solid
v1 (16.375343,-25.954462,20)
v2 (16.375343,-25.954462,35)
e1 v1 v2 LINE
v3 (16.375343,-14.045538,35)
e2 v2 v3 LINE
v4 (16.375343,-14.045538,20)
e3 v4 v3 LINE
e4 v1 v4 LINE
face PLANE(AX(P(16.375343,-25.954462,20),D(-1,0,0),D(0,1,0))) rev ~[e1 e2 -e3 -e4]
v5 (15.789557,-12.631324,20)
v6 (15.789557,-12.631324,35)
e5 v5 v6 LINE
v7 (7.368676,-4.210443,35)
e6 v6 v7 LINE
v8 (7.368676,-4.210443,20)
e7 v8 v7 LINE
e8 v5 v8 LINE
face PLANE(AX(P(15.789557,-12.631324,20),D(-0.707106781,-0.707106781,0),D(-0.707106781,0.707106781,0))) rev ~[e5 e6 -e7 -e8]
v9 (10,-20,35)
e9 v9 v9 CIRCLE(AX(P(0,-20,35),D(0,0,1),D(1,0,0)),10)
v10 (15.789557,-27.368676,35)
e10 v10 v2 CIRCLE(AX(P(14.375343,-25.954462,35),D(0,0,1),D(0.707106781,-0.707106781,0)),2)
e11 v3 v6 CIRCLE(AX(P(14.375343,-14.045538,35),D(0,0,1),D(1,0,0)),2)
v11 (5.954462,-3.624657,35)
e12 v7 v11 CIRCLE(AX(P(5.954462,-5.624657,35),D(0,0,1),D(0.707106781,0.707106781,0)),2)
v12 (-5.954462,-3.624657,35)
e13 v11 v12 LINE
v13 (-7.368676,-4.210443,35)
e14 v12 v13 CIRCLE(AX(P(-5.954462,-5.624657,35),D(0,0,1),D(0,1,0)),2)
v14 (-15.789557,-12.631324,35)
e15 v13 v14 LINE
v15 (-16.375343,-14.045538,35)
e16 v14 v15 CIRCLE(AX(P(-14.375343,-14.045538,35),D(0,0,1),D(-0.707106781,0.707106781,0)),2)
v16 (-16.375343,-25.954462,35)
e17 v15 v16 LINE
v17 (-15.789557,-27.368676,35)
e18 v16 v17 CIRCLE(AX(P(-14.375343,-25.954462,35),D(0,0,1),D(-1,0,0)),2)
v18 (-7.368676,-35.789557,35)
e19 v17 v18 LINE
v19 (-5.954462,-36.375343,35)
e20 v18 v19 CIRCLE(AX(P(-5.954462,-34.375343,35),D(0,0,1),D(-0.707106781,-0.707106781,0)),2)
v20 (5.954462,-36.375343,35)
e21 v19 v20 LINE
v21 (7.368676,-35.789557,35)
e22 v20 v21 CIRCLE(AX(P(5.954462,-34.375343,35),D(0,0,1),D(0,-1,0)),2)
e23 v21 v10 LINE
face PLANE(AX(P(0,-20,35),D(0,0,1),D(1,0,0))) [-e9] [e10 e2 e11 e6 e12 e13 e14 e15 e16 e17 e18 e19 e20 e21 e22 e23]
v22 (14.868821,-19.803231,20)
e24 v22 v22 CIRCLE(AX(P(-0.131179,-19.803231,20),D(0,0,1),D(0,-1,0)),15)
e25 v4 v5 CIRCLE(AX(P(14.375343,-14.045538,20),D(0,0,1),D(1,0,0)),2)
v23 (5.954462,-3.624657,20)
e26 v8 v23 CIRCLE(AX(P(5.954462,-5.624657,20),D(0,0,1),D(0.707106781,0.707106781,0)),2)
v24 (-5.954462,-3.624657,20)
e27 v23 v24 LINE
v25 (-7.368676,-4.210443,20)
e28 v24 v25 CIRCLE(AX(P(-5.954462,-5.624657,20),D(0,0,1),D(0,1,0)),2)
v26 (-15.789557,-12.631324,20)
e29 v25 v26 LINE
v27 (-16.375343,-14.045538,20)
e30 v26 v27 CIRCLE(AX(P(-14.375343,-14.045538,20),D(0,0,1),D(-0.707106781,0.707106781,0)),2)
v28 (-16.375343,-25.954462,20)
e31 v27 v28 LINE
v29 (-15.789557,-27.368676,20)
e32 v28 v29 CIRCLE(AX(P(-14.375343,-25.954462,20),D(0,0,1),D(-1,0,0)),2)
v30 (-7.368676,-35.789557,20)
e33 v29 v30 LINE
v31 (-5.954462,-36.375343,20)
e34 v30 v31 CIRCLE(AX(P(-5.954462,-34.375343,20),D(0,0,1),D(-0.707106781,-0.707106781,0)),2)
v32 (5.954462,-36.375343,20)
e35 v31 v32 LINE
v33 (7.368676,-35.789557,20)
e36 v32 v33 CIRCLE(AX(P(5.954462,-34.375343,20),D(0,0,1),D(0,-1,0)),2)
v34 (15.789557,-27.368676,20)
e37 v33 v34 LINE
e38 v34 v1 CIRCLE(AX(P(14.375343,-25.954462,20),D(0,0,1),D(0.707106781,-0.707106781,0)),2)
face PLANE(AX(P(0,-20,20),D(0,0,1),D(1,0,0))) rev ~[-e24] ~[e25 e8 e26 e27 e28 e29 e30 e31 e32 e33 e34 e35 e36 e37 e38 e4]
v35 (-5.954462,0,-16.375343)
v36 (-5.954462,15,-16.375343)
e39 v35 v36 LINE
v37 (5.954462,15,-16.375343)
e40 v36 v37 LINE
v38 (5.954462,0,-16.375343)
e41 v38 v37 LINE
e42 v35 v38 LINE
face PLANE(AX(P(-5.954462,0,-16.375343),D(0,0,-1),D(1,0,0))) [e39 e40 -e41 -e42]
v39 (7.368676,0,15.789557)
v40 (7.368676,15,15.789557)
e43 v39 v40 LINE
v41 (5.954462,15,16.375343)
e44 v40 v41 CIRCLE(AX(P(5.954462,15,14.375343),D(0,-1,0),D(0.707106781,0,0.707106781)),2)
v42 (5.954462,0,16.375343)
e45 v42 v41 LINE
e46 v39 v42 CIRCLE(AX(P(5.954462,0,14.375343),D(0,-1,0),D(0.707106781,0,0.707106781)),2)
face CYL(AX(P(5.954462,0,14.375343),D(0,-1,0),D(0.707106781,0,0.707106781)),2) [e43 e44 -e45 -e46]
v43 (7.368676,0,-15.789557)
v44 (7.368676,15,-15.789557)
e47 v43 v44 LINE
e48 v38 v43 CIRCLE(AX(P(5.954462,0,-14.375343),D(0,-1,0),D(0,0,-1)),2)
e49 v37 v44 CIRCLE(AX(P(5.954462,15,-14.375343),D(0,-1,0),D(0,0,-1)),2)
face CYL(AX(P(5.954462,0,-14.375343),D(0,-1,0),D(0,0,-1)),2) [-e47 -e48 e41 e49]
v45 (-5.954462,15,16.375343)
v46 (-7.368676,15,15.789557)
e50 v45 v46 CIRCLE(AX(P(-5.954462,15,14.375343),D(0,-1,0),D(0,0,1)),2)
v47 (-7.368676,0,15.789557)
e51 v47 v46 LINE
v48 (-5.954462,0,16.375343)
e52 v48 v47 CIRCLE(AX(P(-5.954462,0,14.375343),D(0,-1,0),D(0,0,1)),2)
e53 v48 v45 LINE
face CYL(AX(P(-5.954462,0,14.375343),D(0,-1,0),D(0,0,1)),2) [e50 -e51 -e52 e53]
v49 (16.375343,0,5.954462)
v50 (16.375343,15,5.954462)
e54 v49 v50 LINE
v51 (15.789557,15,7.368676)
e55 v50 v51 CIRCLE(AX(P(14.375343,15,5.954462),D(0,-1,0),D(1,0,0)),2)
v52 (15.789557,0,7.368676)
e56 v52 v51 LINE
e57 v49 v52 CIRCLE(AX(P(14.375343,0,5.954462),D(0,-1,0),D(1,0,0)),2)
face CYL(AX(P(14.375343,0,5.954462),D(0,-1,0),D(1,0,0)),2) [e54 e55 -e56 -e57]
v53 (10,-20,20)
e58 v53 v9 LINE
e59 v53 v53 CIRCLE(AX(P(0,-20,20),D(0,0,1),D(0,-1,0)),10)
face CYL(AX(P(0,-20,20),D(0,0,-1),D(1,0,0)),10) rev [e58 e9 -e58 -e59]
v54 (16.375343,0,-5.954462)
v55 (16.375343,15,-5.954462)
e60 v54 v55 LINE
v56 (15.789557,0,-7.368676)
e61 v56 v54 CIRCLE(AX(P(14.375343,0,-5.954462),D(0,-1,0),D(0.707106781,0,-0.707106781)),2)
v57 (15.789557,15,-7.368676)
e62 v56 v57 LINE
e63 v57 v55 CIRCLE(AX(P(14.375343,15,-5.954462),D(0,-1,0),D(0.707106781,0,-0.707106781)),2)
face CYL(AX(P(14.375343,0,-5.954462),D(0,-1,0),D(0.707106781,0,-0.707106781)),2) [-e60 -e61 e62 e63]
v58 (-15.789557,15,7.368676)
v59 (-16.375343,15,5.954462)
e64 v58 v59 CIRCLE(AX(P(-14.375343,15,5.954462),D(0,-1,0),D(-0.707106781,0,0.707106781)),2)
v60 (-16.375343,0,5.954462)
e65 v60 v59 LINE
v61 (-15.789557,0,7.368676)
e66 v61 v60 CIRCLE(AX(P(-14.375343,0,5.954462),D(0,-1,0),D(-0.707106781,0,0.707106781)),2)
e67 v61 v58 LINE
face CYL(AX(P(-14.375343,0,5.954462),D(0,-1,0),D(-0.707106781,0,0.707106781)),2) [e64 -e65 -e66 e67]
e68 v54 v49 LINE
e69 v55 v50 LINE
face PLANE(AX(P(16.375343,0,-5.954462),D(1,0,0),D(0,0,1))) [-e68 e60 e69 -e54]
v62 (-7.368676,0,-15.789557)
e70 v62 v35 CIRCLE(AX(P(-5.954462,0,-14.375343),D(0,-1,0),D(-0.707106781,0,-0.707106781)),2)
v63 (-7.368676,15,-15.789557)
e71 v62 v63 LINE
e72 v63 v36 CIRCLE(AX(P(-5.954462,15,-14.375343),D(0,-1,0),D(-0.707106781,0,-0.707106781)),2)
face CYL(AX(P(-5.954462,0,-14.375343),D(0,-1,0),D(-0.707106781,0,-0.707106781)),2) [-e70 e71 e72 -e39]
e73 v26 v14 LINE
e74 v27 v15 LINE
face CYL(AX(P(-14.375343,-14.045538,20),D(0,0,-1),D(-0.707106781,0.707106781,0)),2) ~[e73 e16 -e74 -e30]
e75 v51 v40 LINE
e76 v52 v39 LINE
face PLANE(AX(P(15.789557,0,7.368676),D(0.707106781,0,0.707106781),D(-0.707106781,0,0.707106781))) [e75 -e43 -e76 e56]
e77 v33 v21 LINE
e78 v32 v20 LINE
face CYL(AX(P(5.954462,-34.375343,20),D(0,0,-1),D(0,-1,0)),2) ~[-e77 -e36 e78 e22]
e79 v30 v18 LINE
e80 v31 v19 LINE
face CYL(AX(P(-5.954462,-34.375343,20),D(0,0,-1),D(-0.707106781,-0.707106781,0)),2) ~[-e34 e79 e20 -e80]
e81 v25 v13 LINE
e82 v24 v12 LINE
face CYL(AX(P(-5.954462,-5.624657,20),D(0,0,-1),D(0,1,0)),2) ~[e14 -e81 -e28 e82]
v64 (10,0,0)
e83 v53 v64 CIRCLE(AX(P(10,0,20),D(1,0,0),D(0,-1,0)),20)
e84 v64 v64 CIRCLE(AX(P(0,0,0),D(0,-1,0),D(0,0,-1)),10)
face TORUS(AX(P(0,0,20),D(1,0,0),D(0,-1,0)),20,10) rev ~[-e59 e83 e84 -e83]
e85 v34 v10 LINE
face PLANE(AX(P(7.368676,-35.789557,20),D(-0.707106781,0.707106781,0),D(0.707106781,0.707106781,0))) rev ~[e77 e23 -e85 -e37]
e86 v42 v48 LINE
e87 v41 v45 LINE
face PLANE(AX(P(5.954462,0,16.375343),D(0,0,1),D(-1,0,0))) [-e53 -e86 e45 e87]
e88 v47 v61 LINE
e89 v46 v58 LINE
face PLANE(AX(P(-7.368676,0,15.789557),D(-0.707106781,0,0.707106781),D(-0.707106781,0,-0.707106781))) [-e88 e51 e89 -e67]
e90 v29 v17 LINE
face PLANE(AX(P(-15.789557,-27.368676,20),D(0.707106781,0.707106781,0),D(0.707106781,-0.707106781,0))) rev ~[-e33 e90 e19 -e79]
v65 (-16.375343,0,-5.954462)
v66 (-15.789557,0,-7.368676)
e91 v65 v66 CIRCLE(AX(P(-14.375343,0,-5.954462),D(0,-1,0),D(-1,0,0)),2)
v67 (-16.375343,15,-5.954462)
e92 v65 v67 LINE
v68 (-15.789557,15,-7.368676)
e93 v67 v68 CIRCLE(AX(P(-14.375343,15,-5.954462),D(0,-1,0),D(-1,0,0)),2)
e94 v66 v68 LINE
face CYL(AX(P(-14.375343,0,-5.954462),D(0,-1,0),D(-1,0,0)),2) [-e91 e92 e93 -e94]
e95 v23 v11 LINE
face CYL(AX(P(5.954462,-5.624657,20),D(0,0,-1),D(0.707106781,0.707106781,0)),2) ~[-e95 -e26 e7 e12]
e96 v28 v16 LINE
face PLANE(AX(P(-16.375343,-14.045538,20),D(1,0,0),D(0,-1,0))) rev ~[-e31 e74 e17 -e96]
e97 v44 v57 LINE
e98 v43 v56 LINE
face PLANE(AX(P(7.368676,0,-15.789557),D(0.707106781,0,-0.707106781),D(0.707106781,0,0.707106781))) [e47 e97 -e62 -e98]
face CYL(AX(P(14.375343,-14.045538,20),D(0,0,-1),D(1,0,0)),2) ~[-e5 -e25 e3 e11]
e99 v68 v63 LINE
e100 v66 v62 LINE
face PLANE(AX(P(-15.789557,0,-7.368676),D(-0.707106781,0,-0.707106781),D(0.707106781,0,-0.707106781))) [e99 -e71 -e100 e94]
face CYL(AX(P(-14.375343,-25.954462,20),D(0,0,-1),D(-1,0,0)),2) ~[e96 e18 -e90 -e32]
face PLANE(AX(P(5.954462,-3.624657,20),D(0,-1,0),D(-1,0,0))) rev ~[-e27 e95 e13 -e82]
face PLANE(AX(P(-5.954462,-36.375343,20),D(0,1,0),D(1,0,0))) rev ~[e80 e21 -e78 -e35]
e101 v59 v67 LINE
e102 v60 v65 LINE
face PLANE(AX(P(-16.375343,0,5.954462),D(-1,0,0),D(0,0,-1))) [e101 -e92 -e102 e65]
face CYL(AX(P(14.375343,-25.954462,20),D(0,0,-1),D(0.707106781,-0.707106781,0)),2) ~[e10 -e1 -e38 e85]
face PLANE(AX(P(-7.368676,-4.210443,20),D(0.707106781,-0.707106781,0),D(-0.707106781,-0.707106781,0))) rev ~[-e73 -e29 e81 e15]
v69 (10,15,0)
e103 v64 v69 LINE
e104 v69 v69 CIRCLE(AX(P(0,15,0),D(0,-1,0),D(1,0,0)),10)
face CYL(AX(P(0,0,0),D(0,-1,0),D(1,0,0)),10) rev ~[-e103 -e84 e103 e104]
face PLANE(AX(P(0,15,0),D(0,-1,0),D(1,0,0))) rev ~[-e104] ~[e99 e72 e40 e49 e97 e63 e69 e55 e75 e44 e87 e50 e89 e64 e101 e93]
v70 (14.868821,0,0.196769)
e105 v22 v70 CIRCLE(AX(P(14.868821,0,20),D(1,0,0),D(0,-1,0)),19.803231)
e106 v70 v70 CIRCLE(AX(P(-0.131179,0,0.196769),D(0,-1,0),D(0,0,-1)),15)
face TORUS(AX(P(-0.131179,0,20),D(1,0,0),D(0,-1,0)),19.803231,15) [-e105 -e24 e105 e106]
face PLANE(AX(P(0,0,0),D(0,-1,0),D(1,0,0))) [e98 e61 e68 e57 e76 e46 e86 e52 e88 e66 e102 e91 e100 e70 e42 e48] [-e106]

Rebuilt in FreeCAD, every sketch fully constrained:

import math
import FreeCAD as App
import Part
import Sketcher
Q = App.Units.Quantity

doc = App.newDocument("Part")
body = doc.addObject("PartDesign::Body", "Body")

sketch1 = body.newObject("Sketcher::SketchObject", "Sketch")
sketch1.AttachmentSupport = (doc.getObject("XZ_Plane"), [""])
sketch1.MapMode = "FlatFace"
sketch1.addGeometry(Part.Circle(App.Vector(0, 0, 0), App.Vector(0, 0, 1), 15), False)
sketch1.addGeometry(Part.Circle(App.Vector(0, 0, 0), App.Vector(0, 0, 1), 10), False)
sketch1.addConstraint(Sketcher.Constraint("Coincident", 1, 3, -1, 1))
sketch1.addConstraint(Sketcher.Constraint("Diameter", 0, Q("30 mm")))
sketch1.addConstraint(Sketcher.Constraint("Diameter", 1, Q("20 mm")))
sketch1.addConstraint(Sketcher.Constraint("DistanceX", 0, 3, -1, 1, Q("0.131179 mm")))
sketch1.addConstraint(Sketcher.Constraint("DistanceY", -1, 1, 0, 3, Q("0.196769 mm")))

sketch2 = body.newObject("Sketcher::SketchObject", "Sketch001")
sketch2.AttachmentSupport = (doc.getObject("YZ_Plane"), [""])
sketch2.MapMode = "FlatFace"
sketch2.addGeometry(Part.ArcOfCircle(Part.Circle(App.Vector(0, 20, 0), App.Vector(0, 0, 1), 20), math.radians(180), math.radians(270)), False)
sketch2.addConstraint(Sketcher.Constraint("Coincident", 0, 2, -1, 1))
sketch2.addConstraint(Sketcher.Constraint("PointOnObject", 0, 3, -2))
sketch2.addConstraint(Sketcher.Constraint("Radius", 0, Q("20 mm")))
sketch2.addConstraint(Sketcher.Constraint("DistanceY", -1, 1, 0, 1, Q("20 mm")))
doc.recompute()

additivepipe = body.newObject("PartDesign::AdditivePipe", "AdditivePipe")
additivepipe.Profile = sketch1
additivepipe.Spine = (sketch2, ["Edge1"])

sketch3 = body.newObject("Sketcher::SketchObject", "Sketch002")
sketch3.AttachmentSupport = (doc.getObject("XZ_Plane"), [""])
sketch3.MapMode = "FlatFace"
sketch3.addGeometry(Part.LineSegment(App.Vector(6, 16.4, 0), App.Vector(-6, 16.4, 0)), False)
sketch3.addGeometry(Part.ArcOfCircle(Part.Circle(App.Vector(-6, 14.4, 0), App.Vector(0, 0, 1), 2), math.radians(90), math.radians(135)), False)
sketch3.addGeometry(Part.LineSegment(App.Vector(-7.4, 15.8, 0), App.Vector(-15.8, 7.4, 0)), False)
sketch3.addGeometry(Part.ArcOfCircle(Part.Circle(App.Vector(-14.4, 6, 0), App.Vector(0, 0, 1), 2), math.radians(135), math.radians(180)), False)
sketch3.addGeometry(Part.LineSegment(App.Vector(-16.4, 6, 0), App.Vector(-16.4, -6, 0)), False)
sketch3.addGeometry(Part.ArcOfCircle(Part.Circle(App.Vector(-14.4, -6, 0), App.Vector(0, 0, 1), 2), math.radians(180), math.radians(225)), False)
sketch3.addGeometry(Part.LineSegment(App.Vector(-15.8, -7.4, 0), App.Vector(-7.4, -15.8, 0)), False)
sketch3.addGeometry(Part.ArcOfCircle(Part.Circle(App.Vector(-6, -14.4, 0), App.Vector(0, 0, 1), 2), math.radians(-135), math.radians(-90)), False)
sketch3.addGeometry(Part.LineSegment(App.Vector(-6, -16.4, 0), App.Vector(6, -16.4, 0)), False)
sketch3.addGeometry(Part.ArcOfCircle(Part.Circle(App.Vector(6, -14.4, 0), App.Vector(0, 0, 1), 2), math.radians(-90), math.radians(-45)), False)
sketch3.addGeometry(Part.LineSegment(App.Vector(7.4, -15.8, 0), App.Vector(15.8, -7.4, 0)), False)
sketch3.addGeometry(Part.ArcOfCircle(Part.Circle(App.Vector(14.4, -6, 0), App.Vector(0, 0, 1), 2), math.radians(-45), math.radians(0)), False)
sketch3.addGeometry(Part.LineSegment(App.Vector(16.4, -6, 0), App.Vector(16.4, 6, 0)), False)
sketch3.addGeometry(Part.ArcOfCircle(Part.Circle(App.Vector(14.4, 6, 0), App.Vector(0, 0, 1), 2), math.radians(0), math.radians(45)), False)
sketch3.addGeometry(Part.LineSegment(App.Vector(15.8, 7.4, 0), App.Vector(7.4, 15.8, 0)), False)
sketch3.addGeometry(Part.ArcOfCircle(Part.Circle(App.Vector(6, 14.4, 0), App.Vector(0, 0, 1), 2), math.radians(45), math.radians(90)), False)
sketch3.addGeometry(Part.Circle(App.Vector(0, 0, 0), App.Vector(0, 0, 1), 10), False)
sketch3.addConstraint(Sketcher.Constraint("Tangent", 0, 2, 1, 1))
sketch3.addConstraint(Sketcher.Constraint("Tangent", 1, 2, 2, 1))
sketch3.addConstraint(Sketcher.Constraint("Tangent", 2, 2, 3, 1))
sketch3.addConstraint(Sketcher.Constraint("Tangent", 3, 2, 4, 1))
sketch3.addConstraint(Sketcher.Constraint("Tangent", 4, 2, 5, 1))
sketch3.addConstraint(Sketcher.Constraint("Tangent", 5, 2, 6, 1))
sketch3.addConstraint(Sketcher.Constraint("Tangent", 6, 2, 7, 1))
sketch3.addConstraint(Sketcher.Constraint("Tangent", 7, 2, 8, 1))
sketch3.addConstraint(Sketcher.Constraint("Tangent", 8, 2, 9, 1))
sketch3.addConstraint(Sketcher.Constraint("Tangent", 9, 2, 10, 1))
sketch3.addConstraint(Sketcher.Constraint("Tangent", 10, 2, 11, 1))
sketch3.addConstraint(Sketcher.Constraint("Tangent", 11, 2, 12, 1))
sketch3.addConstraint(Sketcher.Constraint("Tangent", 12, 2, 13, 1))
sketch3.addConstraint(Sketcher.Constraint("Tangent", 13, 2, 14, 1))
sketch3.addConstraint(Sketcher.Constraint("Tangent", 14, 2, 15, 1))
sketch3.addConstraint(Sketcher.Constraint("Tangent", 15, 2, 0, 1))
sketch3.addConstraint(Sketcher.Constraint("Horizontal", 0))
sketch3.addConstraint(Sketcher.Constraint("Vertical", 4))
sketch3.addConstraint(Sketcher.Constraint("Horizontal", 8))
sketch3.addConstraint(Sketcher.Constraint("Vertical", 12))
sketch3.addConstraint(Sketcher.Constraint("Coincident", 16, 3, -1, 1))
sketch3.addConstraint(Sketcher.Constraint("Equal", 1, 3))
sketch3.addConstraint(Sketcher.Constraint("Equal", 3, 5))
sketch3.addConstraint(Sketcher.Constraint("Equal", 5, 7))
sketch3.addConstraint(Sketcher.Constraint("Equal", 7, 9))
sketch3.addConstraint(Sketcher.Constraint("Equal", 9, 11))
sketch3.addConstraint(Sketcher.Constraint("Equal", 11, 13))
sketch3.addConstraint(Sketcher.Constraint("Equal", 13, 15))
sketch3.addConstraint(Sketcher.Constraint("Symmetric", 1, 3, 9, 3, -1, 1))
sketch3.addConstraint(Sketcher.Constraint("Symmetric", 3, 3, 11, 3, -1, 1))
sketch3.addConstraint(Sketcher.Constraint("Symmetric", 5, 2, 13, 2, -1, 1))
sketch3.addConstraint(Sketcher.Constraint("Symmetric", 6, 2, 9, 2, -2))
sketch3.addConstraint(Sketcher.Constraint("Perpendicular", 2, 6))
sketch3.addConstraint(Sketcher.Constraint("Equal", 8, 4))
sketch3.addConstraint(Sketcher.Constraint("Diameter", 16, Q("20 mm")))
sketch3.addConstraint(Sketcher.Constraint("Radius", 1, Q("2 mm")))
sketch3.addConstraint(Sketcher.Constraint("DistanceX", 0, 2, 0, 1, Q("11.908924 mm")))
sketch3.addConstraint(Sketcher.Constraint("DistanceX", 3, 3, 1, 3, Q("8.420881 mm")))
pad1 = body.newObject("PartDesign::Pad", "Pad")
pad1.Profile = sketch3
pad1.Length = 15
pad1.Reversed = True

sketch4 = body.newObject("Sketcher::SketchObject", "Sketch003")
sketch4.AttachmentSupport = (doc.getObject("XY_Plane"), [""])
sketch4.MapMode = "FlatFace"
sketch4.AttachmentOffset = App.Placement(App.Vector(0, 0, 20), App.Rotation())
sketch4.addGeometry(Part.LineSegment(App.Vector(6, -3.6, 0), App.Vector(-6, -3.6, 0)), False)
sketch4.addGeometry(Part.ArcOfCircle(Part.Circle(App.Vector(-6, -5.6, 0), App.Vector(0, 0, 1), 2), math.radians(90), math.radians(135)), False)
sketch4.addGeometry(Part.LineSegment(App.Vector(-7.4, -4.2, 0), App.Vector(-15.8, -12.6, 0)), False)
sketch4.addGeometry(Part.ArcOfCircle(Part.Circle(App.Vector(-14.4, -14, 0), App.Vector(0, 0, 1), 2), math.radians(135), math.radians(180)), False)
sketch4.addGeometry(Part.LineSegment(App.Vector(-16.4, -14, 0), App.Vector(-16.4, -26, 0)), False)
sketch4.addGeometry(Part.ArcOfCircle(Part.Circle(App.Vector(-14.4, -26, 0), App.Vector(0, 0, 1), 2), math.radians(180), math.radians(225)), False)
sketch4.addGeometry(Part.LineSegment(App.Vector(-15.8, -27.4, 0), App.Vector(-7.4, -35.8, 0)), False)
sketch4.addGeometry(Part.ArcOfCircle(Part.Circle(App.Vector(-6, -34.4, 0), App.Vector(0, 0, 1), 2), math.radians(-135), math.radians(-90)), False)
sketch4.addGeometry(Part.LineSegment(App.Vector(-6, -36.4, 0), App.Vector(6, -36.4, 0)), False)
sketch4.addGeometry(Part.ArcOfCircle(Part.Circle(App.Vector(6, -34.4, 0), App.Vector(0, 0, 1), 2), math.radians(-90), math.radians(-45)), False)
sketch4.addGeometry(Part.LineSegment(App.Vector(7.4, -35.8, 0), App.Vector(15.8, -27.4, 0)), False)
sketch4.addGeometry(Part.ArcOfCircle(Part.Circle(App.Vector(14.4, -26, 0), App.Vector(0, 0, 1), 2), math.radians(-45), math.radians(0)), False)
sketch4.addGeometry(Part.LineSegment(App.Vector(16.4, -26, 0), App.Vector(16.4, -14, 0)), False)
sketch4.addGeometry(Part.ArcOfCircle(Part.Circle(App.Vector(14.4, -14, 0), App.Vector(0, 0, 1), 2), math.radians(0), math.radians(45)), False)
sketch4.addGeometry(Part.LineSegment(App.Vector(15.8, -12.6, 0), App.Vector(7.4, -4.2, 0)), False)
sketch4.addGeometry(Part.ArcOfCircle(Part.Circle(App.Vector(6, -5.6, 0), App.Vector(0, 0, 1), 2), math.radians(45), math.radians(90)), False)
sketch4.addGeometry(Part.Circle(App.Vector(0, -20, 0), App.Vector(0, 0, 1), 10), False)
sketch4.addConstraint(Sketcher.Constraint("Tangent", 0, 2, 1, 1))
sketch4.addConstraint(Sketcher.Constraint("Tangent", 1, 2, 2, 1))
sketch4.addConstraint(Sketcher.Constraint("Tangent", 2, 2, 3, 1))
sketch4.addConstraint(Sketcher.Constraint("Tangent", 3, 2, 4, 1))
sketch4.addConstraint(Sketcher.Constraint("Tangent", 4, 2, 5, 1))
sketch4.addConstraint(Sketcher.Constraint("Tangent", 5, 2, 6, 1))
sketch4.addConstraint(Sketcher.Constraint("Tangent", 6, 2, 7, 1))
sketch4.addConstraint(Sketcher.Constraint("Tangent", 7, 2, 8, 1))
sketch4.addConstraint(Sketcher.Constraint("Tangent", 8, 2, 9, 1))
sketch4.addConstraint(Sketcher.Constraint("Tangent", 9, 2, 10, 1))
sketch4.addConstraint(Sketcher.Constraint("Tangent", 10, 2, 11, 1))
sketch4.addConstraint(Sketcher.Constraint("Tangent", 11, 2, 12, 1))
sketch4.addConstraint(Sketcher.Constraint("Tangent", 12, 2, 13, 1))
sketch4.addConstraint(Sketcher.Constraint("Tangent", 13, 2, 14, 1))
sketch4.addConstraint(Sketcher.Constraint("Tangent", 14, 2, 15, 1))
sketch4.addConstraint(Sketcher.Constraint("Tangent", 15, 2, 0, 1))
sketch4.addConstraint(Sketcher.Constraint("Horizontal", 0))
sketch4.addConstraint(Sketcher.Constraint("Vertical", 4))
sketch4.addConstraint(Sketcher.Constraint("Horizontal", 8))
sketch4.addConstraint(Sketcher.Constraint("Vertical", 12))
sketch4.addConstraint(Sketcher.Constraint("Equal", 1, 3))
sketch4.addConstraint(Sketcher.Constraint("Equal", 3, 5))
sketch4.addConstraint(Sketcher.Constraint("Equal", 5, 7))
sketch4.addConstraint(Sketcher.Constraint("Equal", 7, 9))
sketch4.addConstraint(Sketcher.Constraint("Equal", 9, 11))
sketch4.addConstraint(Sketcher.Constraint("Equal", 11, 13))
sketch4.addConstraint(Sketcher.Constraint("Equal", 13, 15))
sketch4.addConstraint(Sketcher.Constraint("Symmetric", 5, 3, 11, 3, -2))
sketch4.addConstraint(Sketcher.Constraint("Symmetric", 2, 2, 13, 2, -2))
sketch4.addConstraint(Sketcher.Constraint("PointOnObject", 16, 3, -2))
sketch4.addConstraint(Sketcher.Constraint("Perpendicular", 2, 6))
sketch4.addConstraint(Sketcher.Constraint("Perpendicular", 6, 10))
sketch4.addConstraint(Sketcher.Constraint("Perpendicular", 10, 14))
sketch4.addConstraint(Sketcher.Constraint("Vertical", 1, 3, 7, 3))
sketch4.addConstraint(Sketcher.Constraint("Equal", 8, 4))
sketch4.addConstraint(Sketcher.Constraint("Diameter", 16, Q("20 mm")))
sketch4.addConstraint(Sketcher.Constraint("Radius", 1, Q("2 mm")))
sketch4.addConstraint(Sketcher.Constraint("DistanceY", 16, 3, -1, 1, Q("20 mm")))
sketch4.addConstraint(Sketcher.Constraint("DistanceX", 0, 2, 0, 1, Q("11.908924 mm")))
sketch4.addConstraint(Sketcher.Constraint("DistanceX", 3, 3, 1, 3, Q("8.420881 mm")))
sketch4.addConstraint(Sketcher.Constraint("DistanceY", 1, 3, -1, 1, Q("5.624657 mm")))
pad2 = body.newObject("PartDesign::Pad", "Pad001")
pad2.Profile = sketch4
pad2.Length = 15

doc.recompute()
